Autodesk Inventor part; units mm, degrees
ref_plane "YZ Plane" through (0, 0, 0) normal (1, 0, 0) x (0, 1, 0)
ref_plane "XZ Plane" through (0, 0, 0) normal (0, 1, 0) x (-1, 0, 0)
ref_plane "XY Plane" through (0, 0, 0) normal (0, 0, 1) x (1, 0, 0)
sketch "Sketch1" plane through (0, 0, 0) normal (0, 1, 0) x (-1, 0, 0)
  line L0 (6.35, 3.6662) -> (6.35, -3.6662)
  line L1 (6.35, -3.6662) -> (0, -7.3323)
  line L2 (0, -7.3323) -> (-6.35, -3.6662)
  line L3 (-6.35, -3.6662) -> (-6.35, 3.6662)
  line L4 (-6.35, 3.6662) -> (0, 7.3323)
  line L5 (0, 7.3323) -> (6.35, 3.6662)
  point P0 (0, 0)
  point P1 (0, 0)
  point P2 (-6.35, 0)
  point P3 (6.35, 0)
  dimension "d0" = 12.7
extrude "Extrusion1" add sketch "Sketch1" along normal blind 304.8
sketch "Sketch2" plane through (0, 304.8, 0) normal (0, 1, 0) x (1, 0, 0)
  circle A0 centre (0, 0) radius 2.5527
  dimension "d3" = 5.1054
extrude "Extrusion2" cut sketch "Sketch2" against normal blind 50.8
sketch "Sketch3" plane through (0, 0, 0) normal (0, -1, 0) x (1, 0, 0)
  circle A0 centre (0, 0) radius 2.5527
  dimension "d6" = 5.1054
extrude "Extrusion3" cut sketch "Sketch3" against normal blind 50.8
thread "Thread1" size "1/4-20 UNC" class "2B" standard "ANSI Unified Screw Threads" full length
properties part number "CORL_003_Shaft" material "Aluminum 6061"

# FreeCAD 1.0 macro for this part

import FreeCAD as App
import Part
import Sketcher

V = App.Vector
Q = App.Units.Quantity

doc = App.newDocument("Part")
body = doc.addObject("PartDesign::Body", "Body")

sketch1 = doc.addObject("Sketcher::SketchObject", "Sketch")
body.addObject(sketch1)
sketch1.AttachmentSupport = (doc.XZ_Plane, [""])
sketch1.MapMode = "FlatFace"
sketch1.addGeometry(Part.LineSegment(V(-6, -4, 0), V(-6, 4, 0)), False)
sketch1.addGeometry(Part.LineSegment(V(-6, 4, 0), V(0, 7, 0)), False)
sketch1.addGeometry(Part.LineSegment(V(0, 7, 0), V(6, 4, 0)), False)
sketch1.addGeometry(Part.LineSegment(V(6, 4, 0), V(6, -4, 0)), False)
sketch1.addGeometry(Part.LineSegment(V(6, -4, 0), V(0, -7, 0)), False)
sketch1.addGeometry(Part.LineSegment(V(0, -7, 0), V(-6, -4, 0)), False)
sketch1.addConstraint(Sketcher.Constraint("Coincident", 0, 2, 1, 1))
sketch1.addConstraint(Sketcher.Constraint("Coincident", 1, 2, 2, 1))
sketch1.addConstraint(Sketcher.Constraint("Coincident", 2, 2, 3, 1))
sketch1.addConstraint(Sketcher.Constraint("Coincident", 3, 2, 4, 1))
sketch1.addConstraint(Sketcher.Constraint("Coincident", 4, 2, 5, 1))
sketch1.addConstraint(Sketcher.Constraint("Coincident", 5, 2, 0, 1))
sketch1.addConstraint(Sketcher.Constraint("Vertical", 0))
sketch1.addConstraint(Sketcher.Constraint("Vertical", 3))
sketch1.addConstraint(Sketcher.Constraint("Symmetric", 0, 2, 3, 2, -1, 1))
sketch1.addConstraint(Sketcher.Constraint("Symmetric", 1, 2, 4, 2, -1, 1))
sketch1.addConstraint(Sketcher.Constraint("PointOnObject", 1, 2, -2))
sketch1.addConstraint(Sketcher.Constraint("Parallel", 2, 5))
sketch1.addConstraint(Sketcher.Constraint("Horizontal", 0, 2, 2, 2))
sketch1.addConstraint(Sketcher.Constraint("DistanceX", 0, 2, 2, 2, Q("0.5 in")))
sketch1.addConstraint(Sketcher.Constraint("Angle", 1, Q("29.9995 deg")))
sketch1.addConstraint(Sketcher.Constraint("DistanceY", 3, 2, 1, 2, Q("0.433 in")))
pad1 = doc.addObject("PartDesign::Pad", "Pad")
body.addObject(pad1)
pad1.Profile = sketch1
pad1.Length = Q("12 in")
pad1.Reversed = True

sketch2 = doc.addObject("Sketcher::SketchObject", "Sketch001")
body.addObject(sketch2)
sketch2.AttachmentSupport = (doc.XZ_Plane, [""])
sketch2.MapMode = "FlatFace"
sketch2.AttachmentOffset = App.Placement(V(0, 0, -12 * 25.4), App.Rotation())
sketch2.addGeometry(Part.Circle(V(0, 0, 0), V(0, 0, 1), 2.6), False)
sketch2.addConstraint(Sketcher.Constraint("Coincident", 0, 3, -1, 1))
sketch2.addConstraint(Sketcher.Constraint("Diameter", 0, Q("0.201 in")))
pocket1 = doc.addObject("PartDesign::Pocket", "Pocket")
body.addObject(pocket1)
pocket1.Profile = sketch2
pocket1.Length = Q("2 in")
pocket1.Reversed = True

sketch3 = doc.addObject("Sketcher::SketchObject", "Sketch002")
body.addObject(sketch3)
sketch3.AttachmentSupport = (doc.XZ_Plane, [""])
sketch3.MapMode = "FlatFace"
sketch3.addGeometry(Part.Circle(V(0, 0, 0), V(0, 0, 1), 2.6), False)
sketch3.addConstraint(Sketcher.Constraint("Coincident", 0, 3, -1, 1))
sketch3.addConstraint(Sketcher.Constraint("Diameter", 0, Q("0.201 in")))
pocket2 = doc.addObject("PartDesign::Pocket", "Pocket001")
body.addObject(pocket2)
pocket2.Profile = sketch3
pocket2.Length = Q("2 in")

doc.recompute()
